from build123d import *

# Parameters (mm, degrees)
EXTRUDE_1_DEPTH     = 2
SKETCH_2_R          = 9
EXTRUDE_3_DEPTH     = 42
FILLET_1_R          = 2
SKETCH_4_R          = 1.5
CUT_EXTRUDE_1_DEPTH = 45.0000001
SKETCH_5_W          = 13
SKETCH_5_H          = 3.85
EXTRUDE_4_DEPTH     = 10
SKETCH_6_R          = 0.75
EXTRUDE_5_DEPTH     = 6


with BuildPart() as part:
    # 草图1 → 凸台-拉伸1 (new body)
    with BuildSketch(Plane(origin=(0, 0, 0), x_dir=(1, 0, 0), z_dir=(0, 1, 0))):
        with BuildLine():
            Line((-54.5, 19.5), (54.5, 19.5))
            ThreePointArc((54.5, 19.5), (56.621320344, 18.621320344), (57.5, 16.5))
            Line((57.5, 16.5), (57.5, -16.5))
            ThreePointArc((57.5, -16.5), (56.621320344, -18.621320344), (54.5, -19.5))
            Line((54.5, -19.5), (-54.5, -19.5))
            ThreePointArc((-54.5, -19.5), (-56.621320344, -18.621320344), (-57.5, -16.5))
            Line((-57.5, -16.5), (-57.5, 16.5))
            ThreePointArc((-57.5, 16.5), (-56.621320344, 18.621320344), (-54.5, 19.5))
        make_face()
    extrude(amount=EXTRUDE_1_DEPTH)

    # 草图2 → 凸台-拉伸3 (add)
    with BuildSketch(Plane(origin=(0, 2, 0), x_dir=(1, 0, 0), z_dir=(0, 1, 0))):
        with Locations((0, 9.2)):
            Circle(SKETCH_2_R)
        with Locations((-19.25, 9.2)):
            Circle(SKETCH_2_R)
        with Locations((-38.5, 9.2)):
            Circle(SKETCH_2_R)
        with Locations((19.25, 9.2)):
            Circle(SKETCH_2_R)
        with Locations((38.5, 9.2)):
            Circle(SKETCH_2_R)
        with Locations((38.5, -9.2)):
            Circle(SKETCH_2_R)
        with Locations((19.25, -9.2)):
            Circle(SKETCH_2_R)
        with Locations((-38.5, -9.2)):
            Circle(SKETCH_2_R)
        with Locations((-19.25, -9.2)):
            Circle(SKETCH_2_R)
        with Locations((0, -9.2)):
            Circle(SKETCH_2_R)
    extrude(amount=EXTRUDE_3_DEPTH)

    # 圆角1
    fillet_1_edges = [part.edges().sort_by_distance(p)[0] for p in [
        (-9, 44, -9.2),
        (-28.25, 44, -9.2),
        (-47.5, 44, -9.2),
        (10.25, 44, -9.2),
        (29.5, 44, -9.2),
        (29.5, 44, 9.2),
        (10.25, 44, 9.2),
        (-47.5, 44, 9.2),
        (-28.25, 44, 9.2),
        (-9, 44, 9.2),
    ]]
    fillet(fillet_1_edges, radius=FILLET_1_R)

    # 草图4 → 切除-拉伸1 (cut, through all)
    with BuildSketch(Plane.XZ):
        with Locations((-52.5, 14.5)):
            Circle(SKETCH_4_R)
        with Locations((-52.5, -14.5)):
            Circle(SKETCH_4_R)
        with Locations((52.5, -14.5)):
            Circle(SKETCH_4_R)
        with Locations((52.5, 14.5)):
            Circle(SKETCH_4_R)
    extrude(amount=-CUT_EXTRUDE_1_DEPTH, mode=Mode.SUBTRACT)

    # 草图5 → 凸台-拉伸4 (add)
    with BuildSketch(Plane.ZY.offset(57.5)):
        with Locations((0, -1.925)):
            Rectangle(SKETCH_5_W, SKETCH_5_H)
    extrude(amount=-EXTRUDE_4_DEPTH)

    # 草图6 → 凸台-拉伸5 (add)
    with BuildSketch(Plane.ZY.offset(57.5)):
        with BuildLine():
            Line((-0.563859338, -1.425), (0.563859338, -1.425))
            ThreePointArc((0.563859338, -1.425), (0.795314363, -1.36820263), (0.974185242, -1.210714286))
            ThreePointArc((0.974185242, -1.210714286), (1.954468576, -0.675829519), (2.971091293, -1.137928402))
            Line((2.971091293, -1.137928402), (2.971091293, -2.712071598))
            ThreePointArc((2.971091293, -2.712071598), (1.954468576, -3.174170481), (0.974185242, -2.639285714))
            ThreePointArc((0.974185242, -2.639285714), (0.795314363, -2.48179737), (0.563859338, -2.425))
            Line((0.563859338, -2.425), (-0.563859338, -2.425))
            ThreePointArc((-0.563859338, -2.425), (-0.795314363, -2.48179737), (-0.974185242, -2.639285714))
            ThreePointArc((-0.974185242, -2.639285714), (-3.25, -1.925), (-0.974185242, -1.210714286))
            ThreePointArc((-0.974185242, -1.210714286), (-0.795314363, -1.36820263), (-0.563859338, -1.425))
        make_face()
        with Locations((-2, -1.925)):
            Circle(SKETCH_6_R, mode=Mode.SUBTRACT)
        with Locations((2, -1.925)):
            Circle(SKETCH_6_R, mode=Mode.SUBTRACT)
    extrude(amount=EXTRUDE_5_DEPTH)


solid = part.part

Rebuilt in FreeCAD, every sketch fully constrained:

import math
import FreeCAD as App
import Part
import Sketcher
from FreeCAD import Vector


def edges_at(feature, points):
    """Names of the edges that pass closest to the given points."""
    edges = feature.Shape.Edges
    near = lambda p: min(range(len(edges)), key=lambda i: edges[i].distToShape(Part.Vertex(*p))[0])
    return sorted({f"Edge{near(p) + 1}" for p in points})


def add_polygon(sketch, points):
    """Adds a closed chain of lines whose ends are joined by coincident constraints."""
    first, n = sketch.GeometryCount, len(points)
    for a, b in zip(points, points[1:] + points[:1]):
        sketch.addGeometry(Part.LineSegment(App.Vector(*a, 0), App.Vector(*b, 0)), False)
    for i in range(n):
        sketch.addConstraint(Sketcher.Constraint("Coincident", first + i, 2, first + (i + 1) % n, 1))

doc = App.newDocument("Part")
body = doc.addObject("PartDesign::Body", "Body")

sketch1 = body.newObject("Sketcher::SketchObject", "Sketch")
sketch1.AttachmentSupport = (doc.getObject("XZ_Plane"), [""])
sketch1.MapMode = "FlatFace"
sketch1.addGeometry(Part.LineSegment(Vector(54.5, -19.5, 0), Vector(-54.5, -19.5, 0)), False)
sketch1.addGeometry(Part.ArcOfCircle(Part.Circle(Vector(-54.5, -16.5, 0), Vector(0, 0, 1), 3), math.radians(180), math.radians(270)), False)
sketch1.addGeometry(Part.LineSegment(Vector(-57.5, -16.5, 0), Vector(-57.5, 16.5, 0)), False)
sketch1.addGeometry(Part.ArcOfCircle(Part.Circle(Vector(-54.5, 16.5, 0), Vector(0, 0, 1), 3), math.radians(90), math.radians(180)), False)
sketch1.addGeometry(Part.LineSegment(Vector(-54.5, 19.5, 0), Vector(54.5, 19.5, 0)), False)
sketch1.addGeometry(Part.ArcOfCircle(Part.Circle(Vector(54.5, 16.5, 0), Vector(0, 0, 1), 3), math.radians(0), math.radians(90)), False)
sketch1.addGeometry(Part.LineSegment(Vector(57.5, 16.5, 0), Vector(57.5, -16.5, 0)), False)
sketch1.addGeometry(Part.ArcOfCircle(Part.Circle(Vector(54.5, -16.5, 0), Vector(0, 0, 1), 3), math.radians(-90), math.radians(0)), False)
sketch1.addConstraint(Sketcher.Constraint("Tangent", 0, 2, 1, 2))
sketch1.addConstraint(Sketcher.Constraint("Tangent", 1, 1, 2, 1))
sketch1.addConstraint(Sketcher.Constraint("Tangent", 2, 2, 3, 2))
sketch1.addConstraint(Sketcher.Constraint("Tangent", 3, 1, 4, 1))
sketch1.addConstraint(Sketcher.Constraint("Tangent", 4, 2, 5, 2))
sketch1.addConstraint(Sketcher.Constraint("Tangent", 5, 1, 6, 1))
sketch1.addConstraint(Sketcher.Constraint("Tangent", 6, 2, 7, 2))
sketch1.addConstraint(Sketcher.Constraint("Tangent", 7, 1, 0, 1))
sketch1.addConstraint(Sketcher.Constraint("Horizontal", 0))
sketch1.addConstraint(Sketcher.Constraint("Vertical", 2))
sketch1.addConstraint(Sketcher.Constraint("Horizontal", 4))
sketch1.addConstraint(Sketcher.Constraint("Vertical", 6))
sketch1.addConstraint(Sketcher.Constraint("Equal", 1, 3))
sketch1.addConstraint(Sketcher.Constraint("Equal", 3, 5))
sketch1.addConstraint(Sketcher.Constraint("Equal", 5, 7))
sketch1.addConstraint(Sketcher.Constraint("Symmetric", 1, 3, 5, 3, -1, 1))
sketch1.addConstraint(Sketcher.Constraint("Radius", 1, 3.0))
sketch1.addConstraint(Sketcher.Constraint("DistanceX", 0, 2, 0, 1, 109.0))
sketch1.addConstraint(Sketcher.Constraint("DistanceY", 2, 1, 2, 2, 33.0))
pad1 = body.newObject("PartDesign::Pad", "Pad")
pad1.Profile = sketch1
pad1.Length = 2
pad1.Reversed = True

sketch2 = body.newObject("Sketcher::SketchObject", "Sketch001")
sketch2.AttachmentSupport = (doc.getObject("XZ_Plane"), [""])
sketch2.MapMode = "FlatFace"
sketch2.AttachmentOffset = App.Placement(Vector(0, 0, -2), App.Rotation())
sketch2.addGeometry(Part.Circle(Vector(0, -9.2, 0), Vector(0, 0, 1), 9), False)
sketch2.addGeometry(Part.Circle(Vector(-19.25, -9.2, 0), Vector(0, 0, 1), 9), False)
sketch2.addGeometry(Part.Circle(Vector(-38.5, -9.2, 0), Vector(0, 0, 1), 9), False)
sketch2.addGeometry(Part.Circle(Vector(19.25, -9.2, 0), Vector(0, 0, 1), 9), False)
sketch2.addGeometry(Part.Circle(Vector(38.5, -9.2, 0), Vector(0, 0, 1), 9), False)
sketch2.addGeometry(Part.Circle(Vector(38.5, 9.2, 0), Vector(0, 0, 1), 9), False)
sketch2.addGeometry(Part.Circle(Vector(19.25, 9.2, 0), Vector(0, 0, 1), 9), False)
sketch2.addGeometry(Part.Circle(Vector(-38.5, 9.2, 0), Vector(0, 0, 1), 9), False)
sketch2.addGeometry(Part.Circle(Vector(-19.25, 9.2, 0), Vector(0, 0, 1), 9), False)
sketch2.addGeometry(Part.Circle(Vector(0, 9.2, 0), Vector(0, 0, 1), 9), False)
sketch2.addConstraint(Sketcher.Constraint("Equal", 0, 1))
sketch2.addConstraint(Sketcher.Constraint("Equal", 1, 2))
sketch2.addConstraint(Sketcher.Constraint("Equal", 2, 3))
sketch2.addConstraint(Sketcher.Constraint("Equal", 3, 4))
sketch2.addConstraint(Sketcher.Constraint("Equal", 4, 5))
sketch2.addConstraint(Sketcher.Constraint("Equal", 5, 6))
sketch2.addConstraint(Sketcher.Constraint("Equal", 6, 7))
sketch2.addConstraint(Sketcher.Constraint("Equal", 7, 8))
sketch2.addConstraint(Sketcher.Constraint("Equal", 8, 9))
sketch2.addConstraint(Sketcher.Constraint("Symmetric", 2, 3, 5, 3, -1, 1))
sketch2.addConstraint(Sketcher.Constraint("Symmetric", 1, 3, 6, 3, -1, 1))
sketch2.addConstraint(Sketcher.Constraint("Symmetric", 4, 3, 7, 3, -1, 1))
sketch2.addConstraint(Sketcher.Constraint("Symmetric", 3, 3, 8, 3, -1, 1))
sketch2.addConstraint(Sketcher.Constraint("Symmetric", 0, 3, 9, 3, -1, 1))
sketch2.addConstraint(Sketcher.Constraint("Symmetric", 1, 3, 3, 3, -2))
sketch2.addConstraint(Sketcher.Constraint("Symmetric", 2, 3, 4, 3, -2))
sketch2.addConstraint(Sketcher.Constraint("PointOnObject", 0, 3, -2))
sketch2.addConstraint(Sketcher.Constraint("Horizontal", 0, 3, 1, 3))
sketch2.addConstraint(Sketcher.Constraint("Horizontal", 1, 3, 2, 3))
sketch2.addConstraint(Sketcher.Constraint("Diameter", 0, 18.0))
sketch2.addConstraint(Sketcher.Constraint("DistanceX", 2, 3, 4, 3, 77.0))
sketch2.addConstraint(Sketcher.Constraint("DistanceY", 0, 3, -1, 1, 9.2))
sketch2.addConstraint(Sketcher.Constraint("DistanceX", 1, 3, 3, 3, 38.5))
pad2 = body.newObject("PartDesign::Pad", "Pad001")
pad2.Profile = sketch2
pad2.Length = 42
pad2.Reversed = True
doc.recompute()

fillet = body.newObject("PartDesign::Fillet", "Fillet")
fillet.Base = (pad2, edges_at(pad2, [
    (-9, 44, -9.2),
    (-28.25, 44, -9.2),
    (-47.5, 44, -9.2),
    (10.25, 44, -9.2),
    (29.5, 44, -9.2),
    (29.5, 44, 9.2),
    (10.25, 44, 9.2),
    (-47.5, 44, 9.2),
    (-28.25, 44, 9.2),
    (-9, 44, 9.2),
]))
fillet.Radius = 2

sketch3 = body.newObject("Sketcher::SketchObject", "Sketch002")
sketch3.AttachmentSupport = (doc.getObject("XZ_Plane"), [""])
sketch3.MapMode = "FlatFace"
sketch3.addGeometry(Part.Circle(Vector(-52.5, 14.5, 0), Vector(0, 0, 1), 1.5), False)
sketch3.addGeometry(Part.Circle(Vector(-52.5, -14.5, 0), Vector(0, 0, 1), 1.5), False)
sketch3.addGeometry(Part.Circle(Vector(52.5, -14.5, 0), Vector(0, 0, 1), 1.5), False)
sketch3.addGeometry(Part.Circle(Vector(52.5, 14.5, 0), Vector(0, 0, 1), 1.5), False)
sketch3.addConstraint(Sketcher.Constraint("Equal", 0, 1))
sketch3.addConstraint(Sketcher.Constraint("Equal", 1, 2))
sketch3.addConstraint(Sketcher.Constraint("Equal", 2, 3))
sketch3.addConstraint(Sketcher.Constraint("Symmetric", 0, 3, 2, 3, -1, 1))
sketch3.addConstraint(Sketcher.Constraint("Symmetric", 1, 3, 3, 3, -1, 1))
sketch3.addConstraint(Sketcher.Constraint("Symmetric", 1, 3, 2, 3, -2))
sketch3.addConstraint(Sketcher.Constraint("Diameter", 0, 3.0))
sketch3.addConstraint(Sketcher.Constraint("DistanceY", 1, 3, 0, 3, 29.0))
sketch3.addConstraint(Sketcher.Constraint("DistanceX", 1, 3, 2, 3, 105.0))
pocket1 = body.newObject("PartDesign::Pocket", "Pocket")
pocket1.Profile = sketch3
pocket1.Type = "ThroughAll"

sketch4 = body.newObject("Sketcher::SketchObject", "Sketch003")
sketch4.AttachmentSupport = (doc.getObject("YZ_Plane"), [""])
sketch4.MapMode = "FlatFace"
sketch4.AttachmentOffset = App.Placement(Vector(0, 0, -57.5), App.Rotation())
add_polygon(sketch4, [(0, -6.5), (-3.85, -6.5), (-3.85, 6.5), (0, 6.5)])
sketch4.addConstraint(Sketcher.Constraint("Horizontal", 0))
sketch4.addConstraint(Sketcher.Constraint("Vertical", 1))
sketch4.addConstraint(Sketcher.Constraint("Horizontal", 2))
sketch4.addConstraint(Sketcher.Constraint("Vertical", 3))
sketch4.addConstraint(Sketcher.Constraint("Symmetric", 2, 2, 3, 2, -1, 1))
sketch4.addConstraint(Sketcher.Constraint("DistanceY", 1, 1, 1, 2, 13.0))
sketch4.addConstraint(Sketcher.Constraint("DistanceX", 0, 2, 0, 1, 3.85))
pad3 = body.newObject("PartDesign::Pad", "Pad002")
pad3.Profile = sketch4
pad3.Length = 10

sketch5 = body.newObject("Sketcher::SketchObject", "Sketch004")
sketch5.AttachmentSupport = (doc.getObject("YZ_Plane"), [""])
sketch5.MapMode = "FlatFace"
sketch5.AttachmentOffset = App.Placement(Vector(0, 0, -57.5), App.Rotation())
sketch5.addGeometry(Part.LineSegment(Vector(-1.425, 0.563859, 0), Vector(-1.425, -0.563859, 0)), False)
sketch5.addGeometry(Part.ArcOfCircle(Part.Circle(Vector(-0.925, -0.563859, 0), Vector(0, 0, 1), 0.5), math.radians(-180), math.radians(-124.849905)), False)
sketch5.addGeometry(Part.ArcOfCircle(Part.Circle(Vector(-1.925, -2, 0), Vector(0, 0, 1), 1.25), math.radians(124.849905), math.radians(415.150095)), False)
sketch5.addGeometry(Part.ArcOfCircle(Part.Circle(Vector(-2.925, -0.563859, 0), Vector(0, 0, 1), 0.5), math.radians(-55.150095), math.radians(0)), False)
sketch5.addGeometry(Part.LineSegment(Vector(-2.425, -0.563859, 0), Vector(-2.425, 0.563859, 0)), False)
sketch5.addGeometry(Part.ArcOfCircle(Part.Circle(Vector(-2.925, 0.563859, 0), Vector(0, 0, 1), 0.5), math.radians(0), math.radians(55.150095)), False)
sketch5.addGeometry(Part.ArcOfCircle(Part.Circle(Vector(-1.925, 2, 0), Vector(0, 0, 1), 1.25), math.radians(129.024842), math.radians(235.150095)), False)
sketch5.addGeometry(Part.LineSegment(Vector(-2.712072, 2.971091, 0), Vector(-1.137928, 2.971091, 0)), False)
sketch5.addGeometry(Part.ArcOfCircle(Part.Circle(Vector(-1.925, 2, 0), Vector(0, 0, 1), 1.25), math.radians(-55.150095), math.radians(50.975158)), False)
sketch5.addGeometry(Part.ArcOfCircle(Part.Circle(Vector(-0.925, 0.563859, 0), Vector(0, 0, 1), 0.5), math.radians(124.849905), math.radians(180)), False)
sketch5.addGeometry(Part.Circle(Vector(-1.925, 2, 0), Vector(0, 0, 1), 0.75), False)
sketch5.addGeometry(Part.Circle(Vector(-1.925, -2, 0), Vector(0, 0, 1), 0.75), False)
sketch5.addConstraint(Sketcher.Constraint("Tangent", 0, 2, 1, 1))
sketch5.addConstraint(Sketcher.Constraint("Tangent", 1, 2, 2, 2))
sketch5.addConstraint(Sketcher.Constraint("Tangent", 2, 1, 3, 1))
sketch5.addConstraint(Sketcher.Constraint("Tangent", 3, 2, 4, 1))
sketch5.addConstraint(Sketcher.Constraint("Tangent", 4, 2, 5, 1))
sketch5.addConstraint(Sketcher.Constraint("Tangent", 5, 2, 6, 2))
sketch5.addConstraint(Sketcher.Constraint("Coincident", 6, 1, 7, 1))
sketch5.addConstraint(Sketcher.Constraint("Coincident", 7, 2, 8, 2))
sketch5.addConstraint(Sketcher.Constraint("Tangent", 8, 1, 9, 1))
sketch5.addConstraint(Sketcher.Constraint("Tangent", 9, 2, 0, 1))
sketch5.addConstraint(Sketcher.Constraint("Vertical", 0))
sketch5.addConstraint(Sketcher.Constraint("Vertical", 4))
sketch5.addConstraint(Sketcher.Constraint("Horizontal", 7))
sketch5.addConstraint(Sketcher.Constraint("Coincident", 8, 3, 6, 3))
sketch5.addConstraint(Sketcher.Constraint("Coincident", 10, 3, 6, 3))
sketch5.addConstraint(Sketcher.Constraint("Coincident", 11, 3, 2, 3))
sketch5.addConstraint(Sketcher.Constraint("Equal", 1, 3))
sketch5.addConstraint(Sketcher.Constraint("Equal", 3, 5))
sketch5.addConstraint(Sketcher.Constraint("Equal", 2, 6))
sketch5.addConstraint(Sketcher.Constraint("Equal", 6, 8))
sketch5.addConstraint(Sketcher.Constraint("Equal", 5, 9))
sketch5.addConstraint(Sketcher.Constraint("Equal", 10, 11))
sketch5.addConstraint(Sketcher.Constraint("Symmetric", 2, 3, 6, 3, -1))
sketch5.addConstraint(Sketcher.Constraint("Horizontal", 1, 3, 3, 3))
sketch5.addConstraint(Sketcher.Constraint("Diameter", 10, 1.5))
sketch5.addConstraint(Sketcher.Constraint("Radius", 1, 0.5))
sketch5.addConstraint(Sketcher.Constraint("Radius", 2, 1.25))
sketch5.addConstraint(Sketcher.Constraint("DistanceY", 2, 3, -1, 1, 2.0))
sketch5.addConstraint(Sketcher.Constraint("DistanceX", 2, 3, 1, 3, 1.0))
sketch5.addConstraint(Sketcher.Constraint("DistanceX", 1, 3, -1, 1, 0.925))
sketch5.addConstraint(Sketcher.Constraint("DistanceX", 7, 1, 7, 2, 1.574143))
pad4 = body.newObject("PartDesign::Pad", "Pad003")
pad4.Profile = sketch5
pad4.Length = 6
pad4.Reversed = True

doc.recompute()
